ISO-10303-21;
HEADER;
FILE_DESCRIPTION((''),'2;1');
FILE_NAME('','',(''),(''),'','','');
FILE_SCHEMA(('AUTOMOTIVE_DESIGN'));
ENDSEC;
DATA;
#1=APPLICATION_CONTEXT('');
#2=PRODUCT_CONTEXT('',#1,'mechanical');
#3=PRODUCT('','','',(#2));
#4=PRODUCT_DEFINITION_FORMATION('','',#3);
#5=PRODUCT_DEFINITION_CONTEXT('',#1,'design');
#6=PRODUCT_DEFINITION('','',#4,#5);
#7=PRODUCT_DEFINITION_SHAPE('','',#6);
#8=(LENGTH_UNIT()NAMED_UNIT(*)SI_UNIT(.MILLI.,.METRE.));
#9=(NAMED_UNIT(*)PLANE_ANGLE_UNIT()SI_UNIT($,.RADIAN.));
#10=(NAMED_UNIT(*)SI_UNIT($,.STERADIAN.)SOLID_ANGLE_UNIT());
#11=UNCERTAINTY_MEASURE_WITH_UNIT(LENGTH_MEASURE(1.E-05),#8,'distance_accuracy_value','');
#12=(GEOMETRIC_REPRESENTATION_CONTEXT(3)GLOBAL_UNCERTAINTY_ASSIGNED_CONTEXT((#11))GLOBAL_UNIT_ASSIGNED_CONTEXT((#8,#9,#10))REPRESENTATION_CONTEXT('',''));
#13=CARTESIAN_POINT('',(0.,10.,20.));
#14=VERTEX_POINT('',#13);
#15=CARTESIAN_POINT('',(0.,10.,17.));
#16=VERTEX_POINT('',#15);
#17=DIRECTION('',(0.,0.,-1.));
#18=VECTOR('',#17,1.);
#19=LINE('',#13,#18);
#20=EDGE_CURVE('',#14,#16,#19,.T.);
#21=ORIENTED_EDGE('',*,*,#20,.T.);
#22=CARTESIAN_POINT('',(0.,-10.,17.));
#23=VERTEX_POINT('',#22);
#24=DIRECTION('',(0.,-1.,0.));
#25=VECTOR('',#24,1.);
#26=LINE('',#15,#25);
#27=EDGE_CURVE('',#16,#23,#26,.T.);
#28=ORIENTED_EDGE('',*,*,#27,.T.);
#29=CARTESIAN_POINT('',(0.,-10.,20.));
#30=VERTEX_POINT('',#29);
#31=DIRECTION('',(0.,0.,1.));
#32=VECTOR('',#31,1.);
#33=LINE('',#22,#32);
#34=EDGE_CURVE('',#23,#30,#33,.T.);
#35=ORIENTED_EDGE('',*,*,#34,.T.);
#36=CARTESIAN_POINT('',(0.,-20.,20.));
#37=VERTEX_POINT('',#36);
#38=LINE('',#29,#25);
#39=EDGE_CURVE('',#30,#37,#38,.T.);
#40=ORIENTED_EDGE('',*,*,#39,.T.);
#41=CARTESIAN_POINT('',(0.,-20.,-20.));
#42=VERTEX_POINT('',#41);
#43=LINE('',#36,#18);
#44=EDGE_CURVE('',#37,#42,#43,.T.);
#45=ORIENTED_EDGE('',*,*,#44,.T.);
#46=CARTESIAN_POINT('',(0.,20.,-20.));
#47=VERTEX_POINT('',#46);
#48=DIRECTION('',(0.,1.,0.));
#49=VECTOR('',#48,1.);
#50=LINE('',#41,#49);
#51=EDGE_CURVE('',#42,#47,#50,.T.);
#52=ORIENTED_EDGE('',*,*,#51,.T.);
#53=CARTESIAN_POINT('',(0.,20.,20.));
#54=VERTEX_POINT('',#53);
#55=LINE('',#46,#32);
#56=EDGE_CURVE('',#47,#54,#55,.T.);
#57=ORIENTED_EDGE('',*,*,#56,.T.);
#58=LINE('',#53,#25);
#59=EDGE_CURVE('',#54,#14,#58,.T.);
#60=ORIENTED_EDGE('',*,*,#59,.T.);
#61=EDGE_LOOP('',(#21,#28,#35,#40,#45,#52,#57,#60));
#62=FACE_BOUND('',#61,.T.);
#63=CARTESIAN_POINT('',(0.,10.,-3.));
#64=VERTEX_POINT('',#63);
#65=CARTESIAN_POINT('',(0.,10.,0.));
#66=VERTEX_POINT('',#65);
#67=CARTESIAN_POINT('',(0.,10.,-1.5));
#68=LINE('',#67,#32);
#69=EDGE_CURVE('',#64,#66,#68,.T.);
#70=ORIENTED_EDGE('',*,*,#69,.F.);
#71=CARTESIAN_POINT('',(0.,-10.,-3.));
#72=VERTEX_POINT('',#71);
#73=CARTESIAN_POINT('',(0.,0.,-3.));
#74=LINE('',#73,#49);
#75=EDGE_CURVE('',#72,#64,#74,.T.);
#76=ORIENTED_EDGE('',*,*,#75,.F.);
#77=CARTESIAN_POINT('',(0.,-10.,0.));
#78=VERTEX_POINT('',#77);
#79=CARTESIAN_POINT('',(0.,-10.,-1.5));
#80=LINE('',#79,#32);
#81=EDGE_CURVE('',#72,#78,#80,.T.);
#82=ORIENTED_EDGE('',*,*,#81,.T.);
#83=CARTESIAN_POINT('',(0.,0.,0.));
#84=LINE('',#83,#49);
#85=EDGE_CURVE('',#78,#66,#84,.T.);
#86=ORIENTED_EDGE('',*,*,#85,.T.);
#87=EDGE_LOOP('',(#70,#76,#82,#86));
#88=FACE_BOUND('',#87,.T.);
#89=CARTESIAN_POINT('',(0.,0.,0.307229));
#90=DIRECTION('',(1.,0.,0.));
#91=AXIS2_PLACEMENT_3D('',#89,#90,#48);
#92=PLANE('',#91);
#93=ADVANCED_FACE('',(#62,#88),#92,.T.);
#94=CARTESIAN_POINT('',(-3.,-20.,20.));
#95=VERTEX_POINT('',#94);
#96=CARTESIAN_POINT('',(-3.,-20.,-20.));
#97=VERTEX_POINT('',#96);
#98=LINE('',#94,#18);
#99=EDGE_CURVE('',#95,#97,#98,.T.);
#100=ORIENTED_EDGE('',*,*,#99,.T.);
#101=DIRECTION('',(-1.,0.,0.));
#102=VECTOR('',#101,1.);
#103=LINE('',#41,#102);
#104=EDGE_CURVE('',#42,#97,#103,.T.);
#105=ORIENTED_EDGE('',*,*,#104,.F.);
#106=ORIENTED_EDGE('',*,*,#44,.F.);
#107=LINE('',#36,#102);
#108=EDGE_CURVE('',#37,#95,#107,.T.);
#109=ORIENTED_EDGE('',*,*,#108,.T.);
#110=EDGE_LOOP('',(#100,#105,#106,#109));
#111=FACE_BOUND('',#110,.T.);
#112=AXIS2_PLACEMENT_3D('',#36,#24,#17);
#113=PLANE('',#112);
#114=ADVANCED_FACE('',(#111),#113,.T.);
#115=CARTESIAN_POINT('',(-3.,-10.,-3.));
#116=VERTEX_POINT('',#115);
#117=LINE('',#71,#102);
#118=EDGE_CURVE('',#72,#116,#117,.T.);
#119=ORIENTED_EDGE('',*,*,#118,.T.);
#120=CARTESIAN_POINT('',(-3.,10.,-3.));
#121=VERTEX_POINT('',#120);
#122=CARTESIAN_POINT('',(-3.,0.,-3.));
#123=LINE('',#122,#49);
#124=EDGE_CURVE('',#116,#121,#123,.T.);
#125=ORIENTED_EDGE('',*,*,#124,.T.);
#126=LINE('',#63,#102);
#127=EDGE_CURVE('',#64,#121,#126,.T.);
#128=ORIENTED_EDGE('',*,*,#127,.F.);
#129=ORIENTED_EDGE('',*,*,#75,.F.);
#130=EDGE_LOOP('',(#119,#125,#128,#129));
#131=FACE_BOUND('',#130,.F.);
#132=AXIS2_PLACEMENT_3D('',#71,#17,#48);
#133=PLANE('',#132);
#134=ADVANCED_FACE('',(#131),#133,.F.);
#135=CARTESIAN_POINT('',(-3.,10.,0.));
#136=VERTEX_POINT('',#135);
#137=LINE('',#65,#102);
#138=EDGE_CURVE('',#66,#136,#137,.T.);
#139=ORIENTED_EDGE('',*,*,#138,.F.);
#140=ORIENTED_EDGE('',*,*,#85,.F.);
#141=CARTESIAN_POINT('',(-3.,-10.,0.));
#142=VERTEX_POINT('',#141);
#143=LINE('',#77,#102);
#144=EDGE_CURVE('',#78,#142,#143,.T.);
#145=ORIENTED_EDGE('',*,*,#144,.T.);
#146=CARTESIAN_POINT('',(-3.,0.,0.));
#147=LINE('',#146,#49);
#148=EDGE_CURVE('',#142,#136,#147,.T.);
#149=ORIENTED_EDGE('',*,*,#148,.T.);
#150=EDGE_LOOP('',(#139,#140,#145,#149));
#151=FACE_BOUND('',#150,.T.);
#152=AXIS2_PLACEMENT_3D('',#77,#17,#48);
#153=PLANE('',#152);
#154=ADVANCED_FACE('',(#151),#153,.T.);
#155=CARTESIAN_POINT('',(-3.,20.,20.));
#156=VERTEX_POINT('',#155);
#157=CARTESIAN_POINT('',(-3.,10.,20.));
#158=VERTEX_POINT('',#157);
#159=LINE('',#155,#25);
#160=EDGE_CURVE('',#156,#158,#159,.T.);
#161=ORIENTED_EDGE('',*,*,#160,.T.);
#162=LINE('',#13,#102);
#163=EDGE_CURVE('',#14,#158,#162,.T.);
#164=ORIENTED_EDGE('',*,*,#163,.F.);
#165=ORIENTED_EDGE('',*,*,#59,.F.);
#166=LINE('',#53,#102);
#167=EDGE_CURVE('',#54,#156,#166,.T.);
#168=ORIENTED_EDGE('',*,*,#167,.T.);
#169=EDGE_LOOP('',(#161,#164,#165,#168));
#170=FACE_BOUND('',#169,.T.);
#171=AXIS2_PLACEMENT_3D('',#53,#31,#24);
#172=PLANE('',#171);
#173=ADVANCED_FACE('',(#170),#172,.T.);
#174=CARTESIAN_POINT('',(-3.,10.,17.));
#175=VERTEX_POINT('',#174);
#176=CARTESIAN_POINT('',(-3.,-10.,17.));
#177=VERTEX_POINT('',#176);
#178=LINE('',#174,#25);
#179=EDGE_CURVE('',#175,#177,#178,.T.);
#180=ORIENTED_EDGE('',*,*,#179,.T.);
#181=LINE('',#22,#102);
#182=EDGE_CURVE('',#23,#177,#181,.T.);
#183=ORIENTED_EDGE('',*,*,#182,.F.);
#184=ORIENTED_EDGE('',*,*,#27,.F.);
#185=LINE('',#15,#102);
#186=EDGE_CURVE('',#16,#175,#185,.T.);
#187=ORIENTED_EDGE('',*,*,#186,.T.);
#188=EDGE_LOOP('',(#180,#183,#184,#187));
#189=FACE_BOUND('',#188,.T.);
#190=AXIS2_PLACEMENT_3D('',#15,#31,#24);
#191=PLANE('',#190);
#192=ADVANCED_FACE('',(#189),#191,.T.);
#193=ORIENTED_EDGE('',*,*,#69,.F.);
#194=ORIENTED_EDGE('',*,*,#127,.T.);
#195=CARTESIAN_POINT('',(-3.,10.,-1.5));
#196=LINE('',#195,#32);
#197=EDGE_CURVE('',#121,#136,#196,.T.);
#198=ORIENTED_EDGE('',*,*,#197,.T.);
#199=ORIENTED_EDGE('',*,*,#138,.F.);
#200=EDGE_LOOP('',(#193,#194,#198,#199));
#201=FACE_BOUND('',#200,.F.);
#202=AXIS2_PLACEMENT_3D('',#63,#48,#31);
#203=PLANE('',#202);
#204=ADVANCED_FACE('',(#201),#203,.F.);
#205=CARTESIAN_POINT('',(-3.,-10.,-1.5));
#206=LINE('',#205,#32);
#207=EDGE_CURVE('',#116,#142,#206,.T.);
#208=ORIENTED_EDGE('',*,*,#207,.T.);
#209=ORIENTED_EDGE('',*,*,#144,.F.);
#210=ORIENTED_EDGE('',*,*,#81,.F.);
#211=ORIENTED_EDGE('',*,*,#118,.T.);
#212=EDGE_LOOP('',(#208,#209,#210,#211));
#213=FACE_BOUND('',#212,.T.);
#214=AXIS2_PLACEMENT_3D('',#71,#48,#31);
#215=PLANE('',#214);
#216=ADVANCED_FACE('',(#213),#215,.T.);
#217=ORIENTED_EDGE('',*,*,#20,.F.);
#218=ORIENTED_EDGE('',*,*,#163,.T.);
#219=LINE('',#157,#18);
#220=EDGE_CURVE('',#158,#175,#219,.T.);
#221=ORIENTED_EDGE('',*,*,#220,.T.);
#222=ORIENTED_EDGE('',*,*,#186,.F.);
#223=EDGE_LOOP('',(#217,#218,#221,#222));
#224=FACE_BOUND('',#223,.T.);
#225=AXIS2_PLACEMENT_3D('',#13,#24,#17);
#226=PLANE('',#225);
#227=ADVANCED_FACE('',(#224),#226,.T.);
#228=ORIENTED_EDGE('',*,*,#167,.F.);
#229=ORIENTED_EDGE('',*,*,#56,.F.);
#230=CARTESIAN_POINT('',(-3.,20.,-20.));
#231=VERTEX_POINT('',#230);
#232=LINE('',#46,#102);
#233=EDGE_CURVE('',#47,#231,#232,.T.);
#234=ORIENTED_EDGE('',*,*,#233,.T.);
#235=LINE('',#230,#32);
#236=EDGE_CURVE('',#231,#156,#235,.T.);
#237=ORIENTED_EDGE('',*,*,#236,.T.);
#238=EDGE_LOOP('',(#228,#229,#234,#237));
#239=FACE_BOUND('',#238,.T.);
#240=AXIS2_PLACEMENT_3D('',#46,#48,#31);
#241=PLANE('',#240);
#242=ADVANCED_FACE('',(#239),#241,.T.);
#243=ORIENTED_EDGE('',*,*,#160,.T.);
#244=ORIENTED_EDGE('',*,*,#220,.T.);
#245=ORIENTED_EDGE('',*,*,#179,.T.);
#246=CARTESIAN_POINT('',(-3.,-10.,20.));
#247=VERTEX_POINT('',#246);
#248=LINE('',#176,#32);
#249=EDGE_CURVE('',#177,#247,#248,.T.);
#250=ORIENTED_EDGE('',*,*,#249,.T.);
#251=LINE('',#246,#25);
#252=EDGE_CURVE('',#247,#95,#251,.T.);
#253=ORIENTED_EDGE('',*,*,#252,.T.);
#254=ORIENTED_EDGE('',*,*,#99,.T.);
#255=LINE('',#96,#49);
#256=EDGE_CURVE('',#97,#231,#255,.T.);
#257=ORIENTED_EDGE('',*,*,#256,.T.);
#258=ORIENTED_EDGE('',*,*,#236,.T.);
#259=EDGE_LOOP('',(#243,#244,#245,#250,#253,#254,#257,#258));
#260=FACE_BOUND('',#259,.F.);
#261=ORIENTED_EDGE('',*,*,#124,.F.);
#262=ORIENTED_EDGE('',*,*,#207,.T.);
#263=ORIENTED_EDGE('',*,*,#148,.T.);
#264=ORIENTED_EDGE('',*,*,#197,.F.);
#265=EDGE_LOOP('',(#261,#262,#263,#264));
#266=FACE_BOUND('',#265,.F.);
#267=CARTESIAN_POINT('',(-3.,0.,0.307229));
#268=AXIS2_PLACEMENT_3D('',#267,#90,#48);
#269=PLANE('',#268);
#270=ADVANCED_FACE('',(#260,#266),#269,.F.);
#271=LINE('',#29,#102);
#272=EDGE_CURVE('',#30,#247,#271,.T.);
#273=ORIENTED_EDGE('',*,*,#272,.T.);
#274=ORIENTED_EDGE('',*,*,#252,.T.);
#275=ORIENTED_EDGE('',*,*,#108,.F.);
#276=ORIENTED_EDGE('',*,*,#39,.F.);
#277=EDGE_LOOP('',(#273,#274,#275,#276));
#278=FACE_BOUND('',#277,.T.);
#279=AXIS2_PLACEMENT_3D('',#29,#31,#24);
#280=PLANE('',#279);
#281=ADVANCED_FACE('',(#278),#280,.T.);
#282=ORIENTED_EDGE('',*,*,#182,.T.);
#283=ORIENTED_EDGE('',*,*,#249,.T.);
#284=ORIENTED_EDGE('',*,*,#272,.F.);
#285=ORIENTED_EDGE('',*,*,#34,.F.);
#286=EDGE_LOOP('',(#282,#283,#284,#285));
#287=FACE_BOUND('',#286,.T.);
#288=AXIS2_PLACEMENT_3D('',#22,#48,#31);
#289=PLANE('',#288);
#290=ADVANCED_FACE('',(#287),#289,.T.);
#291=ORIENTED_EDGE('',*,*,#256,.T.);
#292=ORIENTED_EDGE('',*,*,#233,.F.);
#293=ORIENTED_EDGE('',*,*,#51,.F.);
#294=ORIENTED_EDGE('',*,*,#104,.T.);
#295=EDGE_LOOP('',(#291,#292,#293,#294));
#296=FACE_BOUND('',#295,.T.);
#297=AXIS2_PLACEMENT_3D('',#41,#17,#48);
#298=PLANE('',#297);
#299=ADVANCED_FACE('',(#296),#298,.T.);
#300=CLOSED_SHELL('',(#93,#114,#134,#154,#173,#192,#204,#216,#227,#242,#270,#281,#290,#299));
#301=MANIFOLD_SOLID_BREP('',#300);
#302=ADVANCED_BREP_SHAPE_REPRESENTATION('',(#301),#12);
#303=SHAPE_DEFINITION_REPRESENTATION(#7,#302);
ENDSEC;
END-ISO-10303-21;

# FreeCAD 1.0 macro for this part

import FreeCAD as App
import Part
import Sketcher
Q = App.Units.Quantity


def add_polygon(sketch, points):
    """Adds a closed chain of lines whose ends are joined by coincident constraints."""
    first, n = sketch.GeometryCount, len(points)
    for a, b in zip(points, points[1:] + points[:1]):
        sketch.addGeometry(Part.LineSegment(App.Vector(*a, 0), App.Vector(*b, 0)), False)
    for i in range(n):
        sketch.addConstraint(Sketcher.Constraint("Coincident", first + i, 2, first + (i + 1) % n, 1))

doc = App.newDocument("Part")
body = doc.addObject("PartDesign::Body", "Body")

sketch1 = body.newObject("Sketcher::SketchObject", "Sketch")
sketch1.AttachmentSupport = (doc.getObject("YZ_Plane"), [""])
sketch1.MapMode = "FlatFace"
add_polygon(sketch1, [(-20, -20), (20, -20), (20, 20), (10, 20), (10, 17), (-10, 17), (-10, 20), (-20, 20)])
add_polygon(sketch1, [(10, -3), (-10, -3), (-10, 0), (10, 0)])
sketch1.addConstraint([
    Sketcher.Constraint("Horizontal", 0),
    Sketcher.Constraint("Vertical", 1),
    Sketcher.Constraint("Horizontal", 2),
    Sketcher.Constraint("Vertical", 3),
    Sketcher.Constraint("Horizontal", 4),
    Sketcher.Constraint("Vertical", 5),
    Sketcher.Constraint("Horizontal", 6),
    Sketcher.Constraint("Vertical", 7),
    Sketcher.Constraint("Horizontal", 8),
    Sketcher.Constraint("Vertical", 9),
    Sketcher.Constraint("Horizontal", 10),
    Sketcher.Constraint("Vertical", 11),
    Sketcher.Constraint("Symmetric", 0, 2, 6, 2, -1, 1),
    Sketcher.Constraint("Symmetric", 9, 2, 10, 2, -1, 1),
    Sketcher.Constraint("Symmetric", 2, 2, 5, 2, -2),
    Sketcher.Constraint("Vertical", 5, 2, 8, 2),
    Sketcher.Constraint("Equal", 0, 1),
    Sketcher.Constraint("Equal", 5, 9),
    Sketcher.Constraint("DistanceX", 0, 1, 0, 2, Q("40 mm")),
    Sketcher.Constraint("DistanceX", 2, 2, 2, 1, Q("10 mm")),
    Sketcher.Constraint("DistanceY", 3, 2, 3, 1, Q("3 mm")),
])
pad1 = body.newObject("PartDesign::Pad", "Pad")
pad1.Profile = sketch1
pad1.Length = 3
pad1.Reversed = True

doc.recompute()
